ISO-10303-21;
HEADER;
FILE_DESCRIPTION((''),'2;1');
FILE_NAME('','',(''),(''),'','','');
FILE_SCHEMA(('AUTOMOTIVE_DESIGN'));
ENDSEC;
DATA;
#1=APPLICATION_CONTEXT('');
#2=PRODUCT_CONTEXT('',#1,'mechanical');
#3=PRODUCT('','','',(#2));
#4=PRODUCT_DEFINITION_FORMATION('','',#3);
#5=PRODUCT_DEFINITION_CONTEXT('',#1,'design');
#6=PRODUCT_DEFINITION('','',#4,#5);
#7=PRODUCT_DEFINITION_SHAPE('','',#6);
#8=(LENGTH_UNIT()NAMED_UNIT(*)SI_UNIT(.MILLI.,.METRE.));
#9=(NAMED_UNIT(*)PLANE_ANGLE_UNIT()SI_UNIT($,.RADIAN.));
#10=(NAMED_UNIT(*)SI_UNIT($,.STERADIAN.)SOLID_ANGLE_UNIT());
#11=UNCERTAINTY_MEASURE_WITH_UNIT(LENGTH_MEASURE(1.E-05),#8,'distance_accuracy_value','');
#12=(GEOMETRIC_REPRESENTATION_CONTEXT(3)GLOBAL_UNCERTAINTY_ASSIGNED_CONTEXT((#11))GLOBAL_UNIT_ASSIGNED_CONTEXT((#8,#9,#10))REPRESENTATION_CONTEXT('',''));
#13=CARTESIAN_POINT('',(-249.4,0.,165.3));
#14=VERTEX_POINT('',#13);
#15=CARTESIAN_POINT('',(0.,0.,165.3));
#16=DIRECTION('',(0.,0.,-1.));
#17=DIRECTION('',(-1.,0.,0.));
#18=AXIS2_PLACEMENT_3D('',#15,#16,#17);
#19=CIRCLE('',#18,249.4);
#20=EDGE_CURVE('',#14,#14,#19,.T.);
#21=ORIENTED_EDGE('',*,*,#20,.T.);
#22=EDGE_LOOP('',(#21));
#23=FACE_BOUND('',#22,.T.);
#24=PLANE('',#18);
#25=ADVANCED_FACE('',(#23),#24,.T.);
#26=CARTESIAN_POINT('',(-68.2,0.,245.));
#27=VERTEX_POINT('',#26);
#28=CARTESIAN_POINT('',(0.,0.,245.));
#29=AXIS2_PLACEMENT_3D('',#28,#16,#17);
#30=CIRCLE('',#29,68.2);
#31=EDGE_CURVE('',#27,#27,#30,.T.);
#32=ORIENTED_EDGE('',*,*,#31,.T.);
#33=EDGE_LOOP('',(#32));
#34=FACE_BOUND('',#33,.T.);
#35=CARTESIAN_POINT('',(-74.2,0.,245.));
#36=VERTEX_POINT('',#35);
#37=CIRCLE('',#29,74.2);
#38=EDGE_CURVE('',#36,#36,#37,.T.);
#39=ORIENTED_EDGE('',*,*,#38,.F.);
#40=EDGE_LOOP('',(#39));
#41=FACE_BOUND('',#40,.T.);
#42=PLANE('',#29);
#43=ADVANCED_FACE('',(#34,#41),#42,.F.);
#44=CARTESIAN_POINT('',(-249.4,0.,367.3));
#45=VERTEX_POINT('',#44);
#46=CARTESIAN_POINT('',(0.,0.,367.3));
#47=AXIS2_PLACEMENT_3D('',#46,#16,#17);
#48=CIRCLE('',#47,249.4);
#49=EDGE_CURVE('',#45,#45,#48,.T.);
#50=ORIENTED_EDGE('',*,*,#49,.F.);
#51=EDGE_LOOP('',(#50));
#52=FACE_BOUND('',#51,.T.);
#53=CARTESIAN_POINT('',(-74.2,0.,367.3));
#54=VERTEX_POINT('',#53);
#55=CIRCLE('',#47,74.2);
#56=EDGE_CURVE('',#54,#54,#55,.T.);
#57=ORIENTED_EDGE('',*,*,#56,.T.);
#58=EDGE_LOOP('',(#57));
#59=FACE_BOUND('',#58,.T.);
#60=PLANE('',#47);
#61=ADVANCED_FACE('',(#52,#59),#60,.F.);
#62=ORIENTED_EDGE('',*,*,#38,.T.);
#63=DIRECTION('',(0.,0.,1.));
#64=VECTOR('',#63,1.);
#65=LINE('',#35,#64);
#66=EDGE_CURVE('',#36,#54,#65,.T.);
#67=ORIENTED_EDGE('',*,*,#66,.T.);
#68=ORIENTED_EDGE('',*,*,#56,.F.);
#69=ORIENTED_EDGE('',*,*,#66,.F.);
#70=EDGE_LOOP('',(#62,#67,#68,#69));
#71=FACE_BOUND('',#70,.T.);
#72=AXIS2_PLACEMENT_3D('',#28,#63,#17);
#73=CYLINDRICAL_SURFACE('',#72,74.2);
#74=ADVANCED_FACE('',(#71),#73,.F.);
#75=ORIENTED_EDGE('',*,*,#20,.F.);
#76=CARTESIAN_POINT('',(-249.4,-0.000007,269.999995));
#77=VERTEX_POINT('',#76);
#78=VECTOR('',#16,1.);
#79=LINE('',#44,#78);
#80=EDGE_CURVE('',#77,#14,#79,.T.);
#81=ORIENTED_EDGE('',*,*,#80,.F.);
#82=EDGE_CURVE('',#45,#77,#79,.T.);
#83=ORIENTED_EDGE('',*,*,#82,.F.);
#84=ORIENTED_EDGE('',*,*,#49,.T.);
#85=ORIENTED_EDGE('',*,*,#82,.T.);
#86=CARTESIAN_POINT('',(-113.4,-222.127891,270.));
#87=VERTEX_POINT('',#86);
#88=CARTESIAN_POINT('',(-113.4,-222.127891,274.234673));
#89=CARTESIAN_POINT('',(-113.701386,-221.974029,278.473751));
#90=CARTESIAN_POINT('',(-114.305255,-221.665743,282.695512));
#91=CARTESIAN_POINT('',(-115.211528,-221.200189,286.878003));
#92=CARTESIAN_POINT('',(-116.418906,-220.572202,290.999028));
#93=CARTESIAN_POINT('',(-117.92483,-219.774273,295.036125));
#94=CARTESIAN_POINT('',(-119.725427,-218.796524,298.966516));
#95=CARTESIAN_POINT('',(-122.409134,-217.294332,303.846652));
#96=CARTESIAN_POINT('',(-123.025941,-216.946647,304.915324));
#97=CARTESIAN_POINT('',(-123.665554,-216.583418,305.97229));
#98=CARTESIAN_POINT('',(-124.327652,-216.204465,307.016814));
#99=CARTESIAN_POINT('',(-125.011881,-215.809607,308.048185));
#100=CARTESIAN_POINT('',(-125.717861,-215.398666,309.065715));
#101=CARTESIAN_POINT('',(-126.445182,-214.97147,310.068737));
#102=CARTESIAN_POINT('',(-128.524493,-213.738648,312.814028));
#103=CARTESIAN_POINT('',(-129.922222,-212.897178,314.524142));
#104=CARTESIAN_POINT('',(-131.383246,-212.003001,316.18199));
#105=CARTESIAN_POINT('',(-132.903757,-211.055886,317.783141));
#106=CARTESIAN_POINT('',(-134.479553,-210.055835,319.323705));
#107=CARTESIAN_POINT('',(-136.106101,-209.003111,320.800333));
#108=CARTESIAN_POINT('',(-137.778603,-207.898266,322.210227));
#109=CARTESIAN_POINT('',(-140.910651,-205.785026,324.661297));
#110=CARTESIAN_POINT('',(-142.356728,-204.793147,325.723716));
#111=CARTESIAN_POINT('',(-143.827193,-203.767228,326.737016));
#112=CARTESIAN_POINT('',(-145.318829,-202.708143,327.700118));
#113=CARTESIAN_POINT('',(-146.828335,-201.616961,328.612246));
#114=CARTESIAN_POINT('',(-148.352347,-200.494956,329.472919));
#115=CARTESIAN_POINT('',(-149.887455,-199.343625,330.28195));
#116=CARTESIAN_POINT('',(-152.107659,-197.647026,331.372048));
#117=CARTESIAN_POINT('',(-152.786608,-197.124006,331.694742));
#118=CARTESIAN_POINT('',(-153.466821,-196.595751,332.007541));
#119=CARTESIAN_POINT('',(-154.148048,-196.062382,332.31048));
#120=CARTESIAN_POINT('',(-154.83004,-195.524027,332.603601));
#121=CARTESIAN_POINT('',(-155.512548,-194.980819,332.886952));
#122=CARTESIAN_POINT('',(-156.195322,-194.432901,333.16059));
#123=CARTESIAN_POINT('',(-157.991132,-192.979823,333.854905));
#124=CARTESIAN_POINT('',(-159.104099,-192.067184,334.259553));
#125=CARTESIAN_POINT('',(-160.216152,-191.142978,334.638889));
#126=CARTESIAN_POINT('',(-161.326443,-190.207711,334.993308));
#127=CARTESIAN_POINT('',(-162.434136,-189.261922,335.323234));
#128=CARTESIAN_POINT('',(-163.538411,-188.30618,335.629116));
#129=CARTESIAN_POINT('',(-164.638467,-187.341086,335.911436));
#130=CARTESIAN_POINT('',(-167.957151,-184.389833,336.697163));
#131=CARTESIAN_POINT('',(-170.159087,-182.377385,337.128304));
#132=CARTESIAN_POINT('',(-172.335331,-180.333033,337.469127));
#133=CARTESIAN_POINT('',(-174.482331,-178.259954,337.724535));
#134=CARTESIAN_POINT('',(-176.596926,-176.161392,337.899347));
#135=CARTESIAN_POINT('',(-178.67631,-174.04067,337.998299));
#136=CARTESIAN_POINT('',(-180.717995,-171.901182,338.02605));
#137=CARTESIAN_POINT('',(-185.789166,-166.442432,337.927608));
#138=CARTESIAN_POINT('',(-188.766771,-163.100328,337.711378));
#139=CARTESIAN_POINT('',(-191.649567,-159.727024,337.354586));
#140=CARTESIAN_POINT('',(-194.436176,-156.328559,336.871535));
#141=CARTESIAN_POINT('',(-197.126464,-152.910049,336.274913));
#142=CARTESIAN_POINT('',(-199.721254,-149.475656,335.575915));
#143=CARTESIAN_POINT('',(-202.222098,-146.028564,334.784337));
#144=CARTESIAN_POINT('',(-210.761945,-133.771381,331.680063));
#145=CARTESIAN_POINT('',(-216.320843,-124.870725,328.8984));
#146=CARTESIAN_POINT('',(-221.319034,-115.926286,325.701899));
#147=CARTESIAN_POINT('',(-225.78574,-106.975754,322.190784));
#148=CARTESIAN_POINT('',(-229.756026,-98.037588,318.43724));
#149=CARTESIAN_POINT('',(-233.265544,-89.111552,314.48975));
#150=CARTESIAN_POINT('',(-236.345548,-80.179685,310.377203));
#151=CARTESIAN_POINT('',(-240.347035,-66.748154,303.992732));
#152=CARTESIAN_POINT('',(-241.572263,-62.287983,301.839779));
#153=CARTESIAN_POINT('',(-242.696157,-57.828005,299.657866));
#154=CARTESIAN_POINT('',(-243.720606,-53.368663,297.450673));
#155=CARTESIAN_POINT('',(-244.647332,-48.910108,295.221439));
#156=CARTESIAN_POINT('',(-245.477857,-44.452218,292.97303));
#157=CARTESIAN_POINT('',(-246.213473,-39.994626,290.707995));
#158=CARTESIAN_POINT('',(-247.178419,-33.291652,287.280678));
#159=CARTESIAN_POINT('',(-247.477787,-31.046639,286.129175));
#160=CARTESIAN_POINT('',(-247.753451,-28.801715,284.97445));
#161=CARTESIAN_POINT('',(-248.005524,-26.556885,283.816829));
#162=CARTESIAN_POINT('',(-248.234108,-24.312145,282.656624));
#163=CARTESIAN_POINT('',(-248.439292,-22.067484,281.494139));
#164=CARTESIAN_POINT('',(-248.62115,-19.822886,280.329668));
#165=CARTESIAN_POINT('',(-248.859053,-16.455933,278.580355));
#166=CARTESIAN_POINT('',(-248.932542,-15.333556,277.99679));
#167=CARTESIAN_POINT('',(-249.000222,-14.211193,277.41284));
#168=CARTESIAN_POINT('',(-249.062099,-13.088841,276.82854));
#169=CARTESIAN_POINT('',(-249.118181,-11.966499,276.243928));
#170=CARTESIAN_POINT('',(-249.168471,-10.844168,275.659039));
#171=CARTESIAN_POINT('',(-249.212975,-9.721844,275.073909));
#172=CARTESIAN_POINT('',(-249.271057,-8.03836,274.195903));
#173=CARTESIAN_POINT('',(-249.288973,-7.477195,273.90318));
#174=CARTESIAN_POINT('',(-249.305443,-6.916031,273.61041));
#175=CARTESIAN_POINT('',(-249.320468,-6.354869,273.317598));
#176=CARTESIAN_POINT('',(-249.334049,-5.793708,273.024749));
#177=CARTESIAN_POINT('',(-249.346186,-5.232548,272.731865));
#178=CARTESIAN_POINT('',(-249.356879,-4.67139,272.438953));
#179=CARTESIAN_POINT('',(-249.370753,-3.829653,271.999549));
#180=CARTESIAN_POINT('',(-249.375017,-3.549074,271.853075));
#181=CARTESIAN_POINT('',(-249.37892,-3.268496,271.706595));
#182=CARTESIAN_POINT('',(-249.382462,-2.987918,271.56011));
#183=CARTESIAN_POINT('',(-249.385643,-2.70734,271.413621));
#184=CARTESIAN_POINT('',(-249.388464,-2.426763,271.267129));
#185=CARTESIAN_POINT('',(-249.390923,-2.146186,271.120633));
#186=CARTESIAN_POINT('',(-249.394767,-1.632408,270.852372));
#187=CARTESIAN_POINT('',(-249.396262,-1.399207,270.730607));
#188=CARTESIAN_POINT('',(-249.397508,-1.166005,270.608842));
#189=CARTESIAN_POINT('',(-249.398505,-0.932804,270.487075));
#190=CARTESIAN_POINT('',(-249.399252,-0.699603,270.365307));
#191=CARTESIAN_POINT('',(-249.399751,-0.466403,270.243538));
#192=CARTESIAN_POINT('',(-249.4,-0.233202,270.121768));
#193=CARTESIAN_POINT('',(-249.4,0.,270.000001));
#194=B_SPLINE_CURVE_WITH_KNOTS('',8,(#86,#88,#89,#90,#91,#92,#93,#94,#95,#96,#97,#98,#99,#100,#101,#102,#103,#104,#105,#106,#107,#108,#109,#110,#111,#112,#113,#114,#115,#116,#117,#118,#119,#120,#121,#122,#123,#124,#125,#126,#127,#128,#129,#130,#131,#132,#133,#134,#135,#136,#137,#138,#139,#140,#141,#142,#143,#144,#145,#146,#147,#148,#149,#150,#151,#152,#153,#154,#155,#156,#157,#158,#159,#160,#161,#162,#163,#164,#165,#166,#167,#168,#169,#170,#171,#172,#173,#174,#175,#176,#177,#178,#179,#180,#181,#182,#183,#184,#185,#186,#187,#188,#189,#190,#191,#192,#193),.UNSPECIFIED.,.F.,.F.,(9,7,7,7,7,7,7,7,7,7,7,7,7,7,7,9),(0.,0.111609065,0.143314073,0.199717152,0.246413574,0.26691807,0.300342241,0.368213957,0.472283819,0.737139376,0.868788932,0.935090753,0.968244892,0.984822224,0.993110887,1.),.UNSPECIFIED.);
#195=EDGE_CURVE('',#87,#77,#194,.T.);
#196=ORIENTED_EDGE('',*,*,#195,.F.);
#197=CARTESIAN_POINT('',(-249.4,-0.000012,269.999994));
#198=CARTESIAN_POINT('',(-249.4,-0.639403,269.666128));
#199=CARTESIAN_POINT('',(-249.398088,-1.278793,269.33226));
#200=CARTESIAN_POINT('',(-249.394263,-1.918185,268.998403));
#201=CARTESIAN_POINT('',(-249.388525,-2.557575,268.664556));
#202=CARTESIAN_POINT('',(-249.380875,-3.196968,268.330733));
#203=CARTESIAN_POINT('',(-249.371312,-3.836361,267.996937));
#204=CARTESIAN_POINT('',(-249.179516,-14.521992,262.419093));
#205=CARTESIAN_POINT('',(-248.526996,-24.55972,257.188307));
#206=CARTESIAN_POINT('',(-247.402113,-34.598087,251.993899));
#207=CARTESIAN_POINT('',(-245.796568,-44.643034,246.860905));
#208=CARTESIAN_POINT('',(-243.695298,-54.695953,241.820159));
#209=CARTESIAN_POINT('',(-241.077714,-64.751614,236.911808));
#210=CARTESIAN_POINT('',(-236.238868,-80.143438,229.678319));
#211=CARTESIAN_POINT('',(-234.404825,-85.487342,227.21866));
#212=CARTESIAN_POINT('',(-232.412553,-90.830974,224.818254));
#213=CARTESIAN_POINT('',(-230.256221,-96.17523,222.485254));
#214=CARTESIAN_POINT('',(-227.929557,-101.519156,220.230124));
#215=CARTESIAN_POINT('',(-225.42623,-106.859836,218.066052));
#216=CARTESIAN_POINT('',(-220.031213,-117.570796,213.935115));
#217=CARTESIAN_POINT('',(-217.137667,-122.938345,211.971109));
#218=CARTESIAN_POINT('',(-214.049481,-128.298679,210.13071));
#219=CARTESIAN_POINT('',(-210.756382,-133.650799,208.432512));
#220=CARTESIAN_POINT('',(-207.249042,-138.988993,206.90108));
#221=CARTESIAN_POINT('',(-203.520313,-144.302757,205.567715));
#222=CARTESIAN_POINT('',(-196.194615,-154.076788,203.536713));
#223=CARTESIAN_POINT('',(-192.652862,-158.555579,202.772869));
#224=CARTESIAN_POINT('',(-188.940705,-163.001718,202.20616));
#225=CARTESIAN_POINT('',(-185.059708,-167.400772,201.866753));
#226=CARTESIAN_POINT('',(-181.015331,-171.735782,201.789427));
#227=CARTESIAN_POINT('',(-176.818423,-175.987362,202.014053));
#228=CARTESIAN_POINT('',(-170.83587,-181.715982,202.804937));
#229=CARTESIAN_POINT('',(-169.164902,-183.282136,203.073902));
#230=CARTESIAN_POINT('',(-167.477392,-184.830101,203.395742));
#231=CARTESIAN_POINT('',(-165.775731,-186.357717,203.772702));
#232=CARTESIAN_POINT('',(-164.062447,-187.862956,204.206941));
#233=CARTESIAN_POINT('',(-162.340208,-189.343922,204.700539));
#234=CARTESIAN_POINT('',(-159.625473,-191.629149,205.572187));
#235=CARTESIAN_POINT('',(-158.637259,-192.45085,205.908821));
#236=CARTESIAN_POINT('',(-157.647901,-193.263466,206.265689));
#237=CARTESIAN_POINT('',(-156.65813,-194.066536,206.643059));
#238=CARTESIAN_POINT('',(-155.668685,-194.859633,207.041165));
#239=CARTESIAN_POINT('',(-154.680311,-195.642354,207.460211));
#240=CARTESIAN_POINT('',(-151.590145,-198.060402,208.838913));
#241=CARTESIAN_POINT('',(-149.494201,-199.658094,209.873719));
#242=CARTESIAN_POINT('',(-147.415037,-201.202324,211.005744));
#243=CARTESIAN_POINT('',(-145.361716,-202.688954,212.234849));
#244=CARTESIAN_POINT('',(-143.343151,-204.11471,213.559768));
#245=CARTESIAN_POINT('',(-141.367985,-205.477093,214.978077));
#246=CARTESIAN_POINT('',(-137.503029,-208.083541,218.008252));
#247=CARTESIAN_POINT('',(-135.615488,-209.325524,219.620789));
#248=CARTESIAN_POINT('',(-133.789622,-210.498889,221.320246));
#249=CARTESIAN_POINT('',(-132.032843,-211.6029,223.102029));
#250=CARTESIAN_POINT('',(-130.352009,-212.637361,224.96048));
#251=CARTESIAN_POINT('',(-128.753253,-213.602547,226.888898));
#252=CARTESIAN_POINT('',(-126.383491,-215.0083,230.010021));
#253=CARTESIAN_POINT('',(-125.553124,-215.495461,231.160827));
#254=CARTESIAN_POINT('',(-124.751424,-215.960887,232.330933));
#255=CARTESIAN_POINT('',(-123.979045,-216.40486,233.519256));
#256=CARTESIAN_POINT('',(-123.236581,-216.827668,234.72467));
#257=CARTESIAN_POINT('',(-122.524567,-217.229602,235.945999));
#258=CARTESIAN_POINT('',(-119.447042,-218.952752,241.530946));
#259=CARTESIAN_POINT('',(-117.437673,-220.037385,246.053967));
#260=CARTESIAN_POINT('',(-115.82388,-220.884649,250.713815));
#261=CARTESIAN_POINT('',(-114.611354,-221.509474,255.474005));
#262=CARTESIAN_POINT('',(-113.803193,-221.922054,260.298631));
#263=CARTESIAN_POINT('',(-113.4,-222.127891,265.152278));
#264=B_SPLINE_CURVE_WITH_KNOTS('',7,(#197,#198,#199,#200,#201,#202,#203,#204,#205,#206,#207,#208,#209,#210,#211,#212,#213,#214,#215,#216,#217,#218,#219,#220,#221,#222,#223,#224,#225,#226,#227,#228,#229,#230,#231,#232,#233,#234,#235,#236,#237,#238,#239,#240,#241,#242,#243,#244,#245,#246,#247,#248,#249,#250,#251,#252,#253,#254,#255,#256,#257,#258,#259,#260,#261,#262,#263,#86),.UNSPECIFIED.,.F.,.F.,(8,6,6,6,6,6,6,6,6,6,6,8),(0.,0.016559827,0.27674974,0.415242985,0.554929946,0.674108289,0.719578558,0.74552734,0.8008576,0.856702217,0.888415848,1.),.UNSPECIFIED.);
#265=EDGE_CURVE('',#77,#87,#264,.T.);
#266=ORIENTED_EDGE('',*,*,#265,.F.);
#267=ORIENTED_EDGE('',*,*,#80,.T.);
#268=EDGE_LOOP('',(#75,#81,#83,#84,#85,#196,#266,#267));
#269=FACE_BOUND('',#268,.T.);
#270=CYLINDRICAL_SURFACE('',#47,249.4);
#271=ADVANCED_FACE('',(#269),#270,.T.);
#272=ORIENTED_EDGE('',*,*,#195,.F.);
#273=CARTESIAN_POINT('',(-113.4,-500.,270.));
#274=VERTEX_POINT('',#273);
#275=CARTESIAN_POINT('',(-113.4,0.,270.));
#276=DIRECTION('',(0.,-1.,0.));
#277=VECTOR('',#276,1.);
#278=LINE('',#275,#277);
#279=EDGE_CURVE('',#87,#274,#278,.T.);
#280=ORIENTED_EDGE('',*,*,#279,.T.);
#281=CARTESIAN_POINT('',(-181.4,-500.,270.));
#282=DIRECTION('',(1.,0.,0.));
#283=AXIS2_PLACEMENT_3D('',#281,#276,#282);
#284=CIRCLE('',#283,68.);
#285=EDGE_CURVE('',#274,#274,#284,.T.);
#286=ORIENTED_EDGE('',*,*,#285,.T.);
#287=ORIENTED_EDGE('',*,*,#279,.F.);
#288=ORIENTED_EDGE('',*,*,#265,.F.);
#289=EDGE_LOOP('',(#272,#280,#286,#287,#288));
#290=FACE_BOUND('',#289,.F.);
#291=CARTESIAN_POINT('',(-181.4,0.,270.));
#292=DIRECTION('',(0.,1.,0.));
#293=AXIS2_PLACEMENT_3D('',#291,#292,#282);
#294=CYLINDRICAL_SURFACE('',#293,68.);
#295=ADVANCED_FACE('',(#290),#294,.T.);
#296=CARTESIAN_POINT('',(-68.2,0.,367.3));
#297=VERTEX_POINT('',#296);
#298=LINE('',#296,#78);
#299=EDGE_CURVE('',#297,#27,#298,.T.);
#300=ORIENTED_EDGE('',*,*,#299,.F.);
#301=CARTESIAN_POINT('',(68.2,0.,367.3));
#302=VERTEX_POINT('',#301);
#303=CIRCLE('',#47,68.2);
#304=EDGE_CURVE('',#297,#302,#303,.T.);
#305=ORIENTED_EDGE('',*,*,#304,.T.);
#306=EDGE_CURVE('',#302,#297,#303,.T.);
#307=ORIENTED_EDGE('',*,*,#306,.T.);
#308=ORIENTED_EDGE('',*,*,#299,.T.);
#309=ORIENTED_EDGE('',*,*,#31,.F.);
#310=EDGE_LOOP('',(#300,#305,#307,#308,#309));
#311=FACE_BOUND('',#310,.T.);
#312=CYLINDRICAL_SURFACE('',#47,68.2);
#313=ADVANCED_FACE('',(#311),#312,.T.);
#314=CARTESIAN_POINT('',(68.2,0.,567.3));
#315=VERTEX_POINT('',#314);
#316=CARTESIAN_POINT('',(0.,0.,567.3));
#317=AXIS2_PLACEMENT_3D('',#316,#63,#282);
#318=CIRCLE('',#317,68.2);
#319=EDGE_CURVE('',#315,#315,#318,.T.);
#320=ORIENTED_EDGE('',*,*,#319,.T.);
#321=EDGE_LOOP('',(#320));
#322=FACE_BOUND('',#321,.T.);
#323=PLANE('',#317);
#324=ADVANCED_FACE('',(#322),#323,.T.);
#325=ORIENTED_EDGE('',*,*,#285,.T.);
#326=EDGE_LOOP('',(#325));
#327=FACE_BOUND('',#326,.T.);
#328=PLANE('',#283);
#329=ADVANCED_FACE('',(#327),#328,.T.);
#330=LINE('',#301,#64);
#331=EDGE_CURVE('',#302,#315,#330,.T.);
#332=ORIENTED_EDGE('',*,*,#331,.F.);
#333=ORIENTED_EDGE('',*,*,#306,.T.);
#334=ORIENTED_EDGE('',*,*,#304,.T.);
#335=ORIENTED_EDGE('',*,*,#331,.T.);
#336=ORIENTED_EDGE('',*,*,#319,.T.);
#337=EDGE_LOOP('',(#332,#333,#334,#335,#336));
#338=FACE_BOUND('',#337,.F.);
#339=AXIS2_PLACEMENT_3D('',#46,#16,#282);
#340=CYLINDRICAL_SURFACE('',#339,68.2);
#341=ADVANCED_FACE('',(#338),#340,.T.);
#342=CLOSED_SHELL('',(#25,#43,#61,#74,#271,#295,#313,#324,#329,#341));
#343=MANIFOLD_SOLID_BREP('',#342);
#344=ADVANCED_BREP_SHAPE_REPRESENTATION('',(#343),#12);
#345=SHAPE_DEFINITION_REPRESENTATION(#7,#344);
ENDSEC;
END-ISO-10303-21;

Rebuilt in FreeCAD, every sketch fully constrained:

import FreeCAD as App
import Part
import Sketcher

V = App.Vector
Q = App.Units.Quantity


def add_polygon(sketch, points):
    """Adds a closed chain of lines whose ends are joined by coincident constraints."""
    first, n = sketch.GeometryCount, len(points)
    for a, b in zip(points, points[1:] + points[:1]):
        sketch.addGeometry(Part.LineSegment(App.Vector(*a, 0), App.Vector(*b, 0)), False)
    for i in range(n):
        sketch.addConstraint(Sketcher.Constraint("Coincident", first + i, 2, first + (i + 1) % n, 1))

doc = App.newDocument("Part")
params = doc.addObject("Spreadsheet::Sheet", "Params")
for row, (alias, value) in enumerate([
    ("sketch1_width", "6 mm"),
    ("sketch1_height", "202 mm"),
    ("sketch1_width2", "249.4 mm"),
    ("sketch1_width3", "68.2 mm"),
    ("sketch1_height2", "122.3 mm"),
    ("revolution_angle", "360 deg"),
    ("sketch2_diameter", "136 mm"),
    ("pad1_length", "500 mm"),
    ("sketch3_diameter", "136.4 mm"),
    ("pad2_length", "200 mm"),
], start=1):
    params.set(f"A{row}", alias)
    params.set(f"B{row}", "=" + value)
    params.setAlias(f"B{row}", alias)

body = doc.addObject("PartDesign::Body", "Body")

sketch1 = doc.addObject("Sketcher::SketchObject", "Sketch")
body.addObject(sketch1)
sketch1.AttachmentSupport = (doc.XZ_Plane, [""])
sketch1.MapMode = "FlatFace"
add_polygon(sketch1, [(-249, 165), (0, 165), (0, 367), (-68, 367), (-68, 245), (-74, 245), (-74, 367), (-249, 367)])
sketch1.addConstraint(Sketcher.Constraint("Horizontal", 0))
sketch1.addConstraint(Sketcher.Constraint("Vertical", 1))
sketch1.addConstraint(Sketcher.Constraint("Horizontal", 2))
sketch1.addConstraint(Sketcher.Constraint("Vertical", 3))
sketch1.addConstraint(Sketcher.Constraint("Horizontal", 4))
sketch1.addConstraint(Sketcher.Constraint("Vertical", 5))
sketch1.addConstraint(Sketcher.Constraint("Horizontal", 6))
sketch1.addConstraint(Sketcher.Constraint("Vertical", 7))
sketch1.addConstraint(Sketcher.Constraint("PointOnObject", 0, 2, -2))
sketch1.addConstraint(Sketcher.Constraint("Horizontal", 2, 2, 5, 2))
sketch1.addConstraint(Sketcher.Constraint("DistanceX", 4, 2, 4, 1, Q("6 mm")))
sketch1.addConstraint(Sketcher.Constraint("DistanceY", 1, 1, 1, 2, Q("202 mm")))
sketch1.addConstraint(Sketcher.Constraint("DistanceX", 0, 1, 0, 2, Q("249.4 mm")))
sketch1.addConstraint(Sketcher.Constraint("DistanceX", 2, 2, 2, 1, Q("68.2 mm")))
sketch1.addConstraint(Sketcher.Constraint("DistanceY", 3, 2, 3, 1, Q("122.3 mm")))
sketch1.addConstraint(Sketcher.Constraint("DistanceY", -1, 1, 3, 2, Q("245 mm")))
sketch1.setExpression("Constraints[18]", "Params.sketch1_width")
sketch1.setExpression("Constraints[19]", "Params.sketch1_height")
sketch1.setExpression("Constraints[20]", "Params.sketch1_width2")
sketch1.setExpression("Constraints[21]", "Params.sketch1_width3")
sketch1.setExpression("Constraints[22]", "Params.sketch1_height2")
revolution = doc.addObject("PartDesign::Revolution", "Revolution")
body.addObject(revolution)
revolution.Profile = sketch1
revolution.ReferenceAxis = (sketch1, ["V_Axis"])
revolution.setExpression("Angle", "Params.revolution_angle")

sketch2 = doc.addObject("Sketcher::SketchObject", "Sketch001")
body.addObject(sketch2)
sketch2.AttachmentSupport = (doc.XZ_Plane, [""])
sketch2.MapMode = "FlatFace"
sketch2.addGeometry(Part.Circle(V(-181, 270, 0), V(0, 0, 1), 68), False)
sketch2.addConstraint(Sketcher.Constraint("Diameter", 0, Q("136 mm")))
sketch2.addConstraint(Sketcher.Constraint("DistanceY", -1, 1, 0, 3, Q("270 mm")))
sketch2.addConstraint(Sketcher.Constraint("DistanceX", 0, 3, -1, 1, Q("181.4 mm")))
sketch2.setExpression("Constraints[0]", "Params.sketch2_diameter")
pad1 = doc.addObject("PartDesign::Pad", "Pad")
body.addObject(pad1)
pad1.Profile = sketch2
pad1.setExpression("Length", "Params.pad1_length")

sketch3 = doc.addObject("Sketcher::SketchObject", "Sketch002")
body.addObject(sketch3)
sketch3.AttachmentSupport = (doc.XY_Plane, [""])
sketch3.MapMode = "FlatFace"
sketch3.AttachmentOffset = App.Placement(V(0, 0, 367.3), App.Rotation())
sketch3.addGeometry(Part.Circle(V(0, 0, 0), V(0, 0, 1), 68), False)
sketch3.addConstraint(Sketcher.Constraint("Coincident", 0, 3, -1, 1))
sketch3.addConstraint(Sketcher.Constraint("Diameter", 0, Q("136.4 mm")))
sketch3.setExpression("Constraints[1]", "Params.sketch3_diameter")
pad2 = doc.addObject("PartDesign::Pad", "Pad001")
body.addObject(pad2)
pad2.Profile = sketch3
pad2.setExpression("Length", "Params.pad2_length")

doc.recompute()
